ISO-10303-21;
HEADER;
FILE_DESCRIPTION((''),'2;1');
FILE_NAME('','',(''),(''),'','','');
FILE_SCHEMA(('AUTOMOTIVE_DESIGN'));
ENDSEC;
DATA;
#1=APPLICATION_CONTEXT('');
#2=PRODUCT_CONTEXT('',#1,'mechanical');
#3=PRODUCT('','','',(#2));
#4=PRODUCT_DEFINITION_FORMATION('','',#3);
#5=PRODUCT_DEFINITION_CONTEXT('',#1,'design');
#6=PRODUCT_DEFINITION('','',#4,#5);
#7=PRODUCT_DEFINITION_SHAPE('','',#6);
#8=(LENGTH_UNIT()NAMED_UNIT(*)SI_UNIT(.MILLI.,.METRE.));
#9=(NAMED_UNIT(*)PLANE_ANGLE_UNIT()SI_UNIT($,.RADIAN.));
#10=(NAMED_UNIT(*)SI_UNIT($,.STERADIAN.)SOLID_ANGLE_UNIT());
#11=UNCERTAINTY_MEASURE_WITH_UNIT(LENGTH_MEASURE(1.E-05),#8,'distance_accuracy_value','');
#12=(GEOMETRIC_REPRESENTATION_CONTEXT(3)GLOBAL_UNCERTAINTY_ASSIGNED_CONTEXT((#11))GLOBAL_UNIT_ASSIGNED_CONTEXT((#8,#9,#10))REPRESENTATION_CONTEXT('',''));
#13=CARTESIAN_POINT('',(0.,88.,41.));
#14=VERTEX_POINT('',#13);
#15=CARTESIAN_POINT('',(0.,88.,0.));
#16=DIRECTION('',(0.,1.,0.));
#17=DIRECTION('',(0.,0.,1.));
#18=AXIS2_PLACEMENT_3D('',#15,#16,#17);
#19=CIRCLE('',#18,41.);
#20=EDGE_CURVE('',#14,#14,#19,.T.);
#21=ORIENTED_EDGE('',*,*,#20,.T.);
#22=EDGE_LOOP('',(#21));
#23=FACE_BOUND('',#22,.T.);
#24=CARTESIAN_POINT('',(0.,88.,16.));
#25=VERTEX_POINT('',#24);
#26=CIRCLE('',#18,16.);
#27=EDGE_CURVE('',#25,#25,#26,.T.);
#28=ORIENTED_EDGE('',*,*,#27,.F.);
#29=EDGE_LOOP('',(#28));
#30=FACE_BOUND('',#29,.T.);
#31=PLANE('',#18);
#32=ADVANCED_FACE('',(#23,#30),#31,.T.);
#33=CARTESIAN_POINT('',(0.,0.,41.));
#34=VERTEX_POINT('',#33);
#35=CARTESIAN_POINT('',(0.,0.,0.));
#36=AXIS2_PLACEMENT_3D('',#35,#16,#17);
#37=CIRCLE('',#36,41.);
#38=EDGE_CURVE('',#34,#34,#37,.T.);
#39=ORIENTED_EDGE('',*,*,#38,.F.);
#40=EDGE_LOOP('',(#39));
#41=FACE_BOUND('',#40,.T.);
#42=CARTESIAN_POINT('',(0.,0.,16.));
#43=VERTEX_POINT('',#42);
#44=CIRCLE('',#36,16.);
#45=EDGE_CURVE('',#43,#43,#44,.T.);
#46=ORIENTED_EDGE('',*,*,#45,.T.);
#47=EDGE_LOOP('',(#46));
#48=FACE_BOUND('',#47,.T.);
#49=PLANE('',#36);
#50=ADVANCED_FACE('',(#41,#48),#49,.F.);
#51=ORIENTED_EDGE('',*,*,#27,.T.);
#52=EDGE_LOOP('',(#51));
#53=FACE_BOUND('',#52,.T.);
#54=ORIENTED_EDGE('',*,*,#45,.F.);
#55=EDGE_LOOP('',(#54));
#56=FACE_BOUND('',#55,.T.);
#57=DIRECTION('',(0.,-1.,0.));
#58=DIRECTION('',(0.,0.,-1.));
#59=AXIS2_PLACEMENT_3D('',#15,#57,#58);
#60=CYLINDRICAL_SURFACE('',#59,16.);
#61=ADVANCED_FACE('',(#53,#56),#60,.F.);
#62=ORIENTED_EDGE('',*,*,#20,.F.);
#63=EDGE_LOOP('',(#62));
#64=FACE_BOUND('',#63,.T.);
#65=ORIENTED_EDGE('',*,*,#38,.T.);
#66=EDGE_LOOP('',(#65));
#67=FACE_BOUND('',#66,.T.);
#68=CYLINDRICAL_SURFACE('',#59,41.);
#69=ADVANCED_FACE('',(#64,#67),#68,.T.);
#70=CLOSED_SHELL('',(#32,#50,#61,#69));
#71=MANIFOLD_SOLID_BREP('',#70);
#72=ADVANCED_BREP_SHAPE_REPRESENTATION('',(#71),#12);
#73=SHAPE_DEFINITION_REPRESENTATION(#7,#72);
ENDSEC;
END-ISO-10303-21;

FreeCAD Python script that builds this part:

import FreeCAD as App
import Part
import Sketcher
from FreeCAD import Vector

doc = App.newDocument("Part")
body = doc.addObject("PartDesign::Body", "Body")

sketch1 = body.newObject("Sketcher::SketchObject", "Sketch")
sketch1.AttachmentSupport = (doc.getObject("XZ_Plane"), [""])
sketch1.MapMode = "FlatFace"
sketch1.addGeometry(Part.Circle(Vector(0, 0, 0), Vector(0, 0, 1), 41), False)
sketch1.addGeometry(Part.Circle(Vector(0, 0, 0), Vector(0, 0, 1), 16), False)
sketch1.addConstraint(Sketcher.Constraint("Coincident", 0, 3, -1, 1))
sketch1.addConstraint(Sketcher.Constraint("Coincident", 1, 3, -1, 1))
sketch1.addConstraint(Sketcher.Constraint("Diameter", 0, 82.0))
sketch1.addConstraint(Sketcher.Constraint("Diameter", 1, 32.0))
pad1 = body.newObject("PartDesign::Pad", "Pad")
pad1.Profile = sketch1
pad1.Length = 88
pad1.Reversed = True

doc.recompute()
